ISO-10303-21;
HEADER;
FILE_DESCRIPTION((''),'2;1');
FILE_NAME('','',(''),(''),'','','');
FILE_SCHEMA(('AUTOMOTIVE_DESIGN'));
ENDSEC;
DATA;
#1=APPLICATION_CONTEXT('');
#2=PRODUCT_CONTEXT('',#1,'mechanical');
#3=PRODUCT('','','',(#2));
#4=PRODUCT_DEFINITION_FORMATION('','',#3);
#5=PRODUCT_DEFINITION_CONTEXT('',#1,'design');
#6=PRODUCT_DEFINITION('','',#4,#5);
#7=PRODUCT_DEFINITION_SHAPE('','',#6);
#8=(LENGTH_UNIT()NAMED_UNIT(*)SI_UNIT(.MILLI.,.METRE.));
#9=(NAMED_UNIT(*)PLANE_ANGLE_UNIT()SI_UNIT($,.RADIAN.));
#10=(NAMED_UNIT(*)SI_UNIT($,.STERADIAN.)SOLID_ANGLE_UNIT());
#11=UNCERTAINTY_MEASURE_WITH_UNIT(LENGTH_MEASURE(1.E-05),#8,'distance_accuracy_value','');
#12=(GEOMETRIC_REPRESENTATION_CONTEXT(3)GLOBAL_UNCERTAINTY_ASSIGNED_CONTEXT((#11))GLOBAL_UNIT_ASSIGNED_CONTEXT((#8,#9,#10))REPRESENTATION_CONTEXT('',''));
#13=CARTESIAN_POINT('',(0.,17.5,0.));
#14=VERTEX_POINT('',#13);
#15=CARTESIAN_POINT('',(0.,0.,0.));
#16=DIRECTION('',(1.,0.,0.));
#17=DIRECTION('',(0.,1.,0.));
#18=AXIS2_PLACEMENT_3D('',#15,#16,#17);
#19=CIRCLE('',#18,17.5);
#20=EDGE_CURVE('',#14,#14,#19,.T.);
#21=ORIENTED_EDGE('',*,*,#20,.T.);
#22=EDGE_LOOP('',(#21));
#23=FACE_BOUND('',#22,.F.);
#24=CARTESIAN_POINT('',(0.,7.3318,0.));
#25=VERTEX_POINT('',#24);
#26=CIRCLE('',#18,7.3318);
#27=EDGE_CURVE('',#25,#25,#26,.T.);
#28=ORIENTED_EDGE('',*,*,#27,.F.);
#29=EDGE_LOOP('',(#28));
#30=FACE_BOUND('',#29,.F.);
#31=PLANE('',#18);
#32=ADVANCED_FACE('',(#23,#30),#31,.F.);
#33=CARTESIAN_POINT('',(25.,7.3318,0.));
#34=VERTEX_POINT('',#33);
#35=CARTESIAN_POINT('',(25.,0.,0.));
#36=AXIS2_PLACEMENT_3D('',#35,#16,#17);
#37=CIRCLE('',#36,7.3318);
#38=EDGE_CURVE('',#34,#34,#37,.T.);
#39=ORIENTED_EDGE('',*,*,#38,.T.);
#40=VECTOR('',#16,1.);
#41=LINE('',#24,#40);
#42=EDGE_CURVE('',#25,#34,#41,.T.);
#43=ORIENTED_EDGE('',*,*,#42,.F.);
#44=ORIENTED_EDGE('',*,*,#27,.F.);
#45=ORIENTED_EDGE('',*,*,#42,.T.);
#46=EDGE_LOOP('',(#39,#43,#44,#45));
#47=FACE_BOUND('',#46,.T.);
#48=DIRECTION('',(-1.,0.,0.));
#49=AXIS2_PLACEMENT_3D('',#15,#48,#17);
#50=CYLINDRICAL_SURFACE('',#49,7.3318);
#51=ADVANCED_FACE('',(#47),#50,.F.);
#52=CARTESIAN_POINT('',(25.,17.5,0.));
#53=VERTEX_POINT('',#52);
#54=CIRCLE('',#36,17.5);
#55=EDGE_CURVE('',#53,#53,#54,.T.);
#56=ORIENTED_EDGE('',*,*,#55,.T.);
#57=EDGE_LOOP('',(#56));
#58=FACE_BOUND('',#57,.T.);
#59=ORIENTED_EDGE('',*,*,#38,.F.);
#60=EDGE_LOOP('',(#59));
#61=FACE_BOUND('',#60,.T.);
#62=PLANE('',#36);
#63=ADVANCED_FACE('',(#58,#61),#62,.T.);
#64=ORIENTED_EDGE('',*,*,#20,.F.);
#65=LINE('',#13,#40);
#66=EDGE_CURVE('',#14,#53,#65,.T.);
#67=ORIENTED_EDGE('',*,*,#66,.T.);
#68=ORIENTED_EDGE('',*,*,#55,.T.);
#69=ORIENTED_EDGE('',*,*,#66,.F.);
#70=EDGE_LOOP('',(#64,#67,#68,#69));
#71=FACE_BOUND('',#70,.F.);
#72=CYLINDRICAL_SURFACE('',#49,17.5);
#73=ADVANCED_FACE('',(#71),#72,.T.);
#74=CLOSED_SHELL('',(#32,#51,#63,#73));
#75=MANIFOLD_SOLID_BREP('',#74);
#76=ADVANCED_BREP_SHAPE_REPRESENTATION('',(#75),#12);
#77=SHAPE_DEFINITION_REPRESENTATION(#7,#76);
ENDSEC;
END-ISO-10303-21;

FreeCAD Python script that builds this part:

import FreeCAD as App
import Part
import Sketcher

doc = App.newDocument("Part")
params = doc.addObject("Spreadsheet::Sheet", "Params")
for row, (alias, value) in enumerate([
    ("sketch1_diameter", "35 mm"),
    ("pad1_length", "25 mm"),
], start=1):
    params.set(f"A{row}", alias)
    params.set(f"B{row}", "=" + value)
    params.setAlias(f"B{row}", alias)

body = doc.addObject("PartDesign::Body", "Body")

# Sketch on YZ plane
sketch1 = body.newObject("Sketcher::SketchObject", "Sketch")
sketch1.AttachmentSupport = (doc.getObject("YZ_Plane"), [""])
sketch1.MapMode = "FlatFace"
sketch1.addGeometry([
    Part.Circle(App.Vector(0, 0, 0), App.Vector(0, 0, 1), 18),
    Part.Circle(App.Vector(0, 0, 0), App.Vector(0, 0, 1), 7),
], False)
sketch1.addConstraint([
    Sketcher.Constraint("Coincident", 0, 3, -1, 1),
    Sketcher.Constraint("Coincident", 1, 3, -1, 1),
    Sketcher.Constraint("Diameter", 0, 35.0),
    Sketcher.Constraint("Diameter", 1, 14.6636),
])
sketch1.setExpression("Constraints[2]", "Params.sketch1_diameter")
pad1 = body.newObject("PartDesign::Pad", "Pad")
pad1.Profile = sketch1
pad1.setExpression("Length", "Params.pad1_length")

doc.recompute()
